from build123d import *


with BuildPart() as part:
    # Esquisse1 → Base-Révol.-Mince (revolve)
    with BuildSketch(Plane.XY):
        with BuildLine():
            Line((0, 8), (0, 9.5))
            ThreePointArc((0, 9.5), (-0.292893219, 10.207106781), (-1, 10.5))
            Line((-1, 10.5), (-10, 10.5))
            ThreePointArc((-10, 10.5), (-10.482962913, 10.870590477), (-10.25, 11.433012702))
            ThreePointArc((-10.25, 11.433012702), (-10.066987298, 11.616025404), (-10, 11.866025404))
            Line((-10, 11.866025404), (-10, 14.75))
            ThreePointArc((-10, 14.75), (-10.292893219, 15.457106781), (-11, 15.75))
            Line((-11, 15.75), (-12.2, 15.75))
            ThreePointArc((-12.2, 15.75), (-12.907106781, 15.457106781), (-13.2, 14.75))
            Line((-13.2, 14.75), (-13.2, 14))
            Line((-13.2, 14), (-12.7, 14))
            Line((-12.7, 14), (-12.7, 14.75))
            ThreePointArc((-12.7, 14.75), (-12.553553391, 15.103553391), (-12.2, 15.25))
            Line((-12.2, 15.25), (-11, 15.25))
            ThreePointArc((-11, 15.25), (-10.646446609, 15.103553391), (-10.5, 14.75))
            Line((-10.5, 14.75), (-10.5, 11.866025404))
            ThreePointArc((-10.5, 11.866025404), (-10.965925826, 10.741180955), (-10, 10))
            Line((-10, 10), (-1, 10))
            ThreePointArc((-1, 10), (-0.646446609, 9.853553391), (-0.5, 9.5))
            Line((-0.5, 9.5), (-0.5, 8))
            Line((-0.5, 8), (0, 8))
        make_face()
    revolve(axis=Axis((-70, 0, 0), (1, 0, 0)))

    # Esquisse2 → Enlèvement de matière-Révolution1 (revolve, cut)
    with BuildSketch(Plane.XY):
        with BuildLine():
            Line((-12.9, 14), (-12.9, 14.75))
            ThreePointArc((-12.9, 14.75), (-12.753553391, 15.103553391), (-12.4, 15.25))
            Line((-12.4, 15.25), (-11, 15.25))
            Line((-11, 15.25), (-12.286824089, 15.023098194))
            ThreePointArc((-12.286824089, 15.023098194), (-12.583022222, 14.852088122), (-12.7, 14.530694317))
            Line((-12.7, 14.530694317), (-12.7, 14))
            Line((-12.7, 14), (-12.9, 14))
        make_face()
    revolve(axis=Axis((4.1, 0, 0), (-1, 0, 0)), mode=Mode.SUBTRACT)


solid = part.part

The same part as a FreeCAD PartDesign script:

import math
import FreeCAD as App
import Part
import Sketcher

V = App.Vector
Q = App.Units.Quantity

doc = App.newDocument("Part")
body = doc.addObject("PartDesign::Body", "Body")

# Sketch on XY plane
sketch1 = body.newObject("Sketcher::SketchObject", "Sketch")
sketch1.AttachmentSupport = (doc.getObject("XY_Plane"), [""])
sketch1.MapMode = "FlatFace"
sketch1.addGeometry([
    Part.LineSegment(V(0, 8, 0), V(0, 9.5, 0)),  # 0
    Part.ArcOfCircle(Part.Circle(V(-1, 9.5, 0), V(0, 0, 1), 1), math.radians(0), math.radians(90)),  # 1
    Part.LineSegment(V(-1, 10.5, 0), V(-10, 10.5, 0)),  # 2
    Part.ArcOfCircle(Part.Circle(V(-10, 11, 0), V(0, 0, 1), 0.5), math.radians(120), math.radians(270)),  # 3
    Part.ArcOfCircle(Part.Circle(V(-10.5, 11.866025, 0), V(0, 0, 1), 0.5), math.radians(-60), math.radians(0)),  # 4
    Part.LineSegment(V(-10, 11.866025, 0), V(-10, 14.75, 0)),  # 5
    Part.ArcOfCircle(Part.Circle(V(-11, 14.75, 0), V(0, 0, 1), 1), math.radians(0), math.radians(90)),  # 6
    Part.LineSegment(V(-11, 15.75, 0), V(-12.2, 15.75, 0)),  # 7
    Part.ArcOfCircle(Part.Circle(V(-12.2, 14.75, 0), V(0, 0, 1), 1), math.radians(90), math.radians(180)),  # 8
    Part.LineSegment(V(-13.2, 14.75, 0), V(-13.2, 14, 0)),  # 9
    Part.LineSegment(V(-13.2, 14, 0), V(-12.7, 14, 0)),  # 10
    Part.LineSegment(V(-12.7, 14, 0), V(-12.7, 14.75, 0)),  # 11
    Part.ArcOfCircle(Part.Circle(V(-12.2, 14.75, 0), V(0, 0, 1), 0.5), math.radians(90), math.radians(180)),  # 12
    Part.LineSegment(V(-12.2, 15.25, 0), V(-11, 15.25, 0)),  # 13
    Part.ArcOfCircle(Part.Circle(V(-11, 14.75, 0), V(0, 0, 1), 0.5), math.radians(0), math.radians(90)),  # 14
    Part.LineSegment(V(-10.5, 14.75, 0), V(-10.5, 11.866025, 0)),  # 15
    Part.ArcOfCircle(Part.Circle(V(-10, 11, 0), V(0, 0, 1), 1), math.radians(120), math.radians(270)),  # 16
    Part.LineSegment(V(-10, 10, 0), V(-1, 10, 0)),  # 17
    Part.ArcOfCircle(Part.Circle(V(-1, 9.5, 0), V(0, 0, 1), 0.5), math.radians(0), math.radians(90)),  # 18
    Part.LineSegment(V(-0.5, 9.5, 0), V(-0.5, 8, 0)),  # 19
    Part.LineSegment(V(-0.5, 8, 0), V(0, 8, 0)),  # 20
], False)
sketch1.addConstraint([
    Sketcher.Constraint("Tangent", 0, 2, 1, 1),
    Sketcher.Constraint("Tangent", 1, 2, 2, 1),
    Sketcher.Constraint("Tangent", 2, 2, 3, 2),
    Sketcher.Constraint("Tangent", 3, 1, 4, 1),
    Sketcher.Constraint("Tangent", 4, 2, 5, 1),
    Sketcher.Constraint("Tangent", 5, 2, 6, 1),
    Sketcher.Constraint("Tangent", 6, 2, 7, 1),
    Sketcher.Constraint("Tangent", 7, 2, 8, 1),
    Sketcher.Constraint("Tangent", 8, 2, 9, 1),
    Sketcher.Constraint("Coincident", 9, 2, 10, 1),
    Sketcher.Constraint("Coincident", 10, 2, 11, 1),
    Sketcher.Constraint("Tangent", 11, 2, 12, 2),
    Sketcher.Constraint("Tangent", 12, 1, 13, 1),
    Sketcher.Constraint("Tangent", 13, 2, 14, 2),
    Sketcher.Constraint("Tangent", 14, 1, 15, 1),
    Sketcher.Constraint("Coincident", 15, 2, 16, 1),
    Sketcher.Constraint("Tangent", 16, 2, 17, 1),
    Sketcher.Constraint("Tangent", 17, 2, 18, 2),
    Sketcher.Constraint("Tangent", 18, 1, 19, 1),
    Sketcher.Constraint("Coincident", 19, 2, 20, 1),
    Sketcher.Constraint("Coincident", 20, 2, 0, 1),
    Sketcher.Constraint("Vertical", 0),
    Sketcher.Constraint("Horizontal", 2),
    Sketcher.Constraint("Vertical", 5),
    Sketcher.Constraint("Horizontal", 7),
    Sketcher.Constraint("Vertical", 9),
    Sketcher.Constraint("Horizontal", 10),
    Sketcher.Constraint("Vertical", 11),
    Sketcher.Constraint("Horizontal", 13),
    Sketcher.Constraint("Vertical", 15),
    Sketcher.Constraint("Horizontal", 17),
    Sketcher.Constraint("Vertical", 19),
    Sketcher.Constraint("Horizontal", 20),
    Sketcher.Constraint("Coincident", 12, 3, 8, 3),
    Sketcher.Constraint("Coincident", 14, 3, 6, 3),
    Sketcher.Constraint("Coincident", 16, 3, 3, 3),
    Sketcher.Constraint("Coincident", 18, 3, 1, 3),
    Sketcher.Constraint("Coincident", 15, 2, 4, 3),
    Sketcher.Constraint("Equal", 3, 4),
    Sketcher.Constraint("Equal", 1, 6),
    Sketcher.Constraint("Equal", 6, 8),
    Sketcher.Constraint("Equal", 4, 12),
    Sketcher.Constraint("PointOnObject", 0, 2, -2),
    Sketcher.Constraint("Vertical", 2, 2, 4, 2),
    Sketcher.Constraint("Radius", 1, Q("1 mm")),
    Sketcher.Constraint("DistanceX", 2, 2, 2, 1, Q("9 mm")),
    Sketcher.Constraint("DistanceX", 7, 2, 7, 1, Q("1.2 mm")),
    Sketcher.Constraint("DistanceY", 0, 1, 0, 2, Q("1.5 mm")),
    Sketcher.Constraint("DistanceY", -1, 1, 3, 3, Q("11 mm")),
    Sketcher.Constraint("DistanceY", -1, 1, 9, 2, Q("14 mm")),
    Sketcher.Constraint("DistanceY", 9, 2, 9, 1, Q("0.75 mm")),
])
revolution = body.newObject("PartDesign::Revolution", "Revolution")
revolution.Profile = sketch1
revolution.ReferenceAxis = (sketch1, ["H_Axis"])
revolution.Angle = 360

# Sketch on XY plane
sketch2 = body.newObject("Sketcher::SketchObject", "Sketch001")
sketch2.AttachmentSupport = (doc.getObject("XY_Plane"), [""])
sketch2.MapMode = "FlatFace"
sketch2.addGeometry([
    Part.LineSegment(V(-12.9, 14.75, 0), V(-12.9, 14, 0)),  # 0
    Part.LineSegment(V(-12.9, 14, 0), V(-12.7, 14, 0)),  # 1
    Part.LineSegment(V(-12.7, 14, 0), V(-12.7, 14.530694, 0)),  # 2
    Part.ArcOfCircle(Part.Circle(V(-12.2, 14.530694, 0), V(0, 0, 1), 0.5), math.radians(100), math.radians(180)),  # 3
    Part.LineSegment(V(-12.286824, 15.023098, 0), V(-11, 15.25, 0)),  # 4
    Part.LineSegment(V(-11, 15.25, 0), V(-12.4, 15.25, 0)),  # 5
    Part.ArcOfCircle(Part.Circle(V(-12.4, 14.75, 0), V(0, 0, 1), 0.5), math.radians(90), math.radians(180)),  # 6
], False)
sketch2.addConstraint([
    Sketcher.Constraint("Coincident", 0, 2, 1, 1),
    Sketcher.Constraint("Coincident", 1, 2, 2, 1),
    Sketcher.Constraint("Tangent", 2, 2, 3, 2),
    Sketcher.Constraint("Tangent", 3, 1, 4, 1),
    Sketcher.Constraint("Coincident", 4, 2, 5, 1),
    Sketcher.Constraint("Tangent", 5, 2, 6, 1),
    Sketcher.Constraint("Tangent", 6, 2, 0, 1),
    Sketcher.Constraint("Vertical", 0),
    Sketcher.Constraint("Horizontal", 1),
    Sketcher.Constraint("Vertical", 2),
    Sketcher.Constraint("Horizontal", 5),
    Sketcher.Constraint("Equal", 3, 6),
    Sketcher.Constraint("Radius", 3, Q("0.5 mm")),
    Sketcher.Constraint("Angle", 4, Q("10 deg")),
    Sketcher.Constraint("DistanceX", 1, 1, 1, 2, Q("0.2 mm")),
    Sketcher.Constraint("DistanceX", 5, 2, 5, 1, Q("1.4 mm")),
    Sketcher.Constraint("DistanceY", -1, 1, 0, 2, Q("14 mm")),
    Sketcher.Constraint("DistanceX", 4, 2, -1, 1, Q("11 mm")),
    Sketcher.Constraint("DistanceY", 0, 2, 0, 1, Q("0.75 mm")),
])
groove = body.newObject("PartDesign::Groove", "Groove")
groove.Profile = sketch2
groove.ReferenceAxis = (sketch2, ["H_Axis"])
groove.Angle = 360

doc.recompute()
